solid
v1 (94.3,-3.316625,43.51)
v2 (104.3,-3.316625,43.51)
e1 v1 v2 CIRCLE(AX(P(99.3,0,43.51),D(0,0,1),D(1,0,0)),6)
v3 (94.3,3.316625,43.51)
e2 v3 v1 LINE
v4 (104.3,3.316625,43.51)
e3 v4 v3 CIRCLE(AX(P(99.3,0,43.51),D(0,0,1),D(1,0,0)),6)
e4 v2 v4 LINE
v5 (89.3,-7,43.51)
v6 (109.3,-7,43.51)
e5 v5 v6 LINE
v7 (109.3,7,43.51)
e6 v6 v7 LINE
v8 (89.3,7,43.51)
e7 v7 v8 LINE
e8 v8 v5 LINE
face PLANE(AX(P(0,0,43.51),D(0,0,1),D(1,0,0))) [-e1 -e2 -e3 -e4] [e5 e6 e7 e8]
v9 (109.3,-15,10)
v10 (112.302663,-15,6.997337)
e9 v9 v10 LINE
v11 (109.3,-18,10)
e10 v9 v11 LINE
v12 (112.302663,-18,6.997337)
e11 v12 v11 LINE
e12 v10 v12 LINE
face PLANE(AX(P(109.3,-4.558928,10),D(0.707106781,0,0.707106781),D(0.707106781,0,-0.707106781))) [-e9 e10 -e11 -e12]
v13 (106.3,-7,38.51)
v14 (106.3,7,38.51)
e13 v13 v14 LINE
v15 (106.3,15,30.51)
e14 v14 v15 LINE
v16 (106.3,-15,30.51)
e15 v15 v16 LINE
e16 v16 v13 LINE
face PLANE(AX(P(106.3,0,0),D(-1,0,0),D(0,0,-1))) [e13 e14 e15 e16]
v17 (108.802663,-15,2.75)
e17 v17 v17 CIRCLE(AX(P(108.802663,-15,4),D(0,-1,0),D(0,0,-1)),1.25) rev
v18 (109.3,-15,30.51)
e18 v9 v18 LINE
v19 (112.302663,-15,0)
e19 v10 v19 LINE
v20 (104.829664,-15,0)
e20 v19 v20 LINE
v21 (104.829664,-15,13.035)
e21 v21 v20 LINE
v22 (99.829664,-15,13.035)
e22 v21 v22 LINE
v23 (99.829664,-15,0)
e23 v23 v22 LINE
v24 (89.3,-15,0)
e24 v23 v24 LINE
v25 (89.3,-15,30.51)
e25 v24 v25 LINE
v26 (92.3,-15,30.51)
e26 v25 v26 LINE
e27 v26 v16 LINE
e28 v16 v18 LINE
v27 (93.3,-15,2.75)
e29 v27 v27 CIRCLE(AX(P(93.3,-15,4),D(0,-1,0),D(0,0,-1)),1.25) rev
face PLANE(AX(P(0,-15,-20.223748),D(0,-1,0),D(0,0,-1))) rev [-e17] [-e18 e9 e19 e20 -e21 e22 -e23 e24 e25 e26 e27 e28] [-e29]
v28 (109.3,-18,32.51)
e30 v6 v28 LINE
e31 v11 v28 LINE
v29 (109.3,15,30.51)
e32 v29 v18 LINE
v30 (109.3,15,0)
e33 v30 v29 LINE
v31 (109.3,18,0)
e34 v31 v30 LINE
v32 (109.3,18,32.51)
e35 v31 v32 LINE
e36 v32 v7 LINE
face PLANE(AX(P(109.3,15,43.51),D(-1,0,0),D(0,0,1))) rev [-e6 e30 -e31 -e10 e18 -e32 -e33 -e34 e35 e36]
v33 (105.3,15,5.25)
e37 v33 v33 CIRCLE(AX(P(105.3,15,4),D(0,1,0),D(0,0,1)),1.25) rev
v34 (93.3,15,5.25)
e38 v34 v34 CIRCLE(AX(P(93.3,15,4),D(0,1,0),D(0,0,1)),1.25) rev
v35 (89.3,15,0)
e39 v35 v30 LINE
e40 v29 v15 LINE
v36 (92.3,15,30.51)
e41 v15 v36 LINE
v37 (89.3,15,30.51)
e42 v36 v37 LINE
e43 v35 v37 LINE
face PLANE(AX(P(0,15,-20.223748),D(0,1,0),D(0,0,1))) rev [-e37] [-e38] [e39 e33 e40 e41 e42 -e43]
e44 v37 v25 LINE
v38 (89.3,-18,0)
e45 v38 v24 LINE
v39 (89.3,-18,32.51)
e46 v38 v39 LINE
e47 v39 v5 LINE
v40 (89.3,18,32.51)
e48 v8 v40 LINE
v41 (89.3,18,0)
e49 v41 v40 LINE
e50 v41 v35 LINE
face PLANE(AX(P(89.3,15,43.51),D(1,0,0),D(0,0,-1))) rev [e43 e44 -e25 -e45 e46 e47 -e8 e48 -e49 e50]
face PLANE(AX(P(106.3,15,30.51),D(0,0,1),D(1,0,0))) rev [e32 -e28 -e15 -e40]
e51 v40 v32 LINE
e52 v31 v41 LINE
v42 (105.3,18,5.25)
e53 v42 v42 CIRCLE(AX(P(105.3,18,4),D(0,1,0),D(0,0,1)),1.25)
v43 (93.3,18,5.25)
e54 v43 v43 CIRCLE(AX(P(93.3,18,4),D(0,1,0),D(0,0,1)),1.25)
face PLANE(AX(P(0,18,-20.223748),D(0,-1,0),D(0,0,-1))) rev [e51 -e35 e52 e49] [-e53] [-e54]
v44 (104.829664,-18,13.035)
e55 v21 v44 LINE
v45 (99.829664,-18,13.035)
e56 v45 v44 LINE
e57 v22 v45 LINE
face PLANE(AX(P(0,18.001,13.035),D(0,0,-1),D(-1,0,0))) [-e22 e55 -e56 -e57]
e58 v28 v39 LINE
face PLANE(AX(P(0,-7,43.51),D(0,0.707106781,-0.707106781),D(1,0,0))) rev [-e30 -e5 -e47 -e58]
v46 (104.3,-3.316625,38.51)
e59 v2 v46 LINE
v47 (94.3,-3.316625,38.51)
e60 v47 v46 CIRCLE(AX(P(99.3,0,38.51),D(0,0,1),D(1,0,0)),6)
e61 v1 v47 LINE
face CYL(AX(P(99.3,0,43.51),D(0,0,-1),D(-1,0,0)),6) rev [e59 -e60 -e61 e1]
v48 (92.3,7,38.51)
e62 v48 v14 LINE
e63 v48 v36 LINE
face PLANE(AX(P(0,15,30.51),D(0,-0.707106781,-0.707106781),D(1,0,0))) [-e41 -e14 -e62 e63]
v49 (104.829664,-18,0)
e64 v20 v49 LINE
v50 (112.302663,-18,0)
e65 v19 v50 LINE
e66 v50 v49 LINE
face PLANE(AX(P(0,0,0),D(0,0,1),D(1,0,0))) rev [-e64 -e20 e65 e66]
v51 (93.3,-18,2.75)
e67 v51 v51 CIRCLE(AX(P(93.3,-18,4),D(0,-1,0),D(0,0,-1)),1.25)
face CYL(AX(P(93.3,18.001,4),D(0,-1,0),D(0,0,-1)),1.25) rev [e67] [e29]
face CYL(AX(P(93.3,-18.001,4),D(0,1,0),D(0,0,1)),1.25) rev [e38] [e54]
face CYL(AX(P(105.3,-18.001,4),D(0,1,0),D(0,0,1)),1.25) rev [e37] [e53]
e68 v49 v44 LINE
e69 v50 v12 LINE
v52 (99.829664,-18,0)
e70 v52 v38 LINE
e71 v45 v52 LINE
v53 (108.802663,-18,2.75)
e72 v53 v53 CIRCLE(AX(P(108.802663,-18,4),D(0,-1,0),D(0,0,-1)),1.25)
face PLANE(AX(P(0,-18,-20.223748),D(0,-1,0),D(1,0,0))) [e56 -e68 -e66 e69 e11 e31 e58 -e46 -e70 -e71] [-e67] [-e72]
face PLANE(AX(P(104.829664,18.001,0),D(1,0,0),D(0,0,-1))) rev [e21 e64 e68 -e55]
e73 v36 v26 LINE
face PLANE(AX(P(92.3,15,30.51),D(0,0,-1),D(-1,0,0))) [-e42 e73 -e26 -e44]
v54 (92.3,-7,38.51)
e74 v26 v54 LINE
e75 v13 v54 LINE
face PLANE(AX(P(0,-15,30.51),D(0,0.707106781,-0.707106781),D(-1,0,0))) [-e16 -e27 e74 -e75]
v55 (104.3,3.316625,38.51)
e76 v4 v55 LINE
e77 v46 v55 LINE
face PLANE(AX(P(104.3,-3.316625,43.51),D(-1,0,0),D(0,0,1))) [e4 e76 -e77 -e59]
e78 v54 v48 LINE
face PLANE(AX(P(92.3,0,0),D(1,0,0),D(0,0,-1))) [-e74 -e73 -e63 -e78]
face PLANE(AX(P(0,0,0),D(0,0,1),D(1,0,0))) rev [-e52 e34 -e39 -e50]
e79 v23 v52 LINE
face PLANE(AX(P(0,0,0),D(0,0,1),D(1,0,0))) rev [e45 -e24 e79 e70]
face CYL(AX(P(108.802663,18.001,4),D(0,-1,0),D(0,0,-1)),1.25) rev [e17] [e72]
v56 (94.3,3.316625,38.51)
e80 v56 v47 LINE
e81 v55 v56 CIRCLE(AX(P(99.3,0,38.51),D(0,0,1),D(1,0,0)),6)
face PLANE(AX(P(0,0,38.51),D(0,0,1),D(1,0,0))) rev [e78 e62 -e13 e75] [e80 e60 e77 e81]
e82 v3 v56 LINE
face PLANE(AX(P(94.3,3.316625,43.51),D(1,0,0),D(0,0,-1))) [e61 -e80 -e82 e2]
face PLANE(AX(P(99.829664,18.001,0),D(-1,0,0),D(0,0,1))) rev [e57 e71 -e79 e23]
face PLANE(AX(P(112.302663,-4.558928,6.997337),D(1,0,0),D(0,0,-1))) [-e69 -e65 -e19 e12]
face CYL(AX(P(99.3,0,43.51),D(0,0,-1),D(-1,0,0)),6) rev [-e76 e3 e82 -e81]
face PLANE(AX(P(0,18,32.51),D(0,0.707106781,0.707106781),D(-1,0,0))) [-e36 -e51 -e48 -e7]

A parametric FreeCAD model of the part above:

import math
import FreeCAD as App
import Part
import Sketcher
Q = App.Units.Quantity


def edges_at(feature, points):
    """Names of the edges that pass closest to the given points."""
    edges = feature.Shape.Edges
    near = lambda p: min(range(len(edges)), key=lambda i: edges[i].distToShape(Part.Vertex(*p))[0])
    return sorted({f"Edge{near(p) + 1}" for p in points})


def add_polygon(sketch, points):
    """Adds a closed chain of lines whose ends are joined by coincident constraints."""
    first, n = sketch.GeometryCount, len(points)
    for a, b in zip(points, points[1:] + points[:1]):
        sketch.addGeometry(Part.LineSegment(App.Vector(*a, 0), App.Vector(*b, 0)), False)
    for i in range(n):
        sketch.addConstraint(Sketcher.Constraint("Coincident", first + i, 2, first + (i + 1) % n, 1))

doc = App.newDocument("Part")
params = doc.addObject("Spreadsheet::Sheet", "Params")
for row, (alias, value) in enumerate([
    ("sketch1_radius", "6 mm"),
    ("sketch1_width", "20 mm"),
    ("sketch1_height", "30 mm"),
    ("pad1_length", "5 mm"),
    ("sketch2_width", "20 mm"),
    ("sketch2_height", "3 mm"),
    ("pad2_length", "43.51 mm"),
    ("sketch3_width", "5 mm"),
    ("sketch4_height", "10 mm"),
    ("pad3_length", "3 mm"),
    ("sketch5_diameter", "2.5 mm"),
    ("sketch6_diameter", "2.5 mm"),
    ("sketch7_diameter", "2.5 mm"),
    ("sketch8_diameter", "2.5 mm"),
    ("chamfer_size", "8 mm"),
    ("chamfer2_size", "11 mm"),
    ("sketch9_width", "14 mm"),
    ("sketch9_width2", "30 mm"),
    ("pad4_length", "3 mm"),
], start=1):
    params.set(f"A{row}", alias)
    params.set(f"B{row}", "=" + value)
    params.setAlias(f"B{row}", alias)

body = doc.addObject("PartDesign::Body", "Body")

sketch1 = body.newObject("Sketcher::SketchObject", "Sketch")
sketch1.AttachmentSupport = (doc.getObject("XY_Plane"), [""])
sketch1.MapMode = "FlatFace"
sketch1.AttachmentOffset = App.Placement(App.Vector(0, 0, 38.51), App.Rotation())
add_polygon(sketch1, [(89, 15), (89, -15), (109, -15), (109, 15)])
sketch1.addGeometry(Part.LineSegment(App.Vector(104, 3, 0), App.Vector(104, -3, 0)), False)
sketch1.addGeometry(Part.ArcOfCircle(Part.Circle(App.Vector(99, 0, 0), App.Vector(0, 0, 1), 6), math.radians(-146), math.radians(-34)), False)
sketch1.addGeometry(Part.LineSegment(App.Vector(94, -3, 0), App.Vector(94, 3, 0)), False)
sketch1.addGeometry(Part.ArcOfCircle(Part.Circle(App.Vector(99, 0, 0), App.Vector(0, 0, 1), 6), math.radians(34), math.radians(146)), False)
sketch1.addConstraint([
    Sketcher.Constraint("Coincident", 4, 2, 5, 2),
    Sketcher.Constraint("Coincident", 5, 1, 6, 1),
    Sketcher.Constraint("Coincident", 6, 2, 7, 2),
    Sketcher.Constraint("Coincident", 7, 1, 4, 1),
    Sketcher.Constraint("Vertical", 0),
    Sketcher.Constraint("Horizontal", 1),
    Sketcher.Constraint("Vertical", 2),
    Sketcher.Constraint("Horizontal", 3),
    Sketcher.Constraint("Vertical", 4),
    Sketcher.Constraint("Vertical", 6),
    Sketcher.Constraint("Coincident", 7, 3, 5, 3),
    Sketcher.Constraint("Equal", 5, 7),
    Sketcher.Constraint("PointOnObject", 5, 3, -1),
    Sketcher.Constraint("Horizontal", 4, 2, 5, 1),
    Sketcher.Constraint("Radius", 5, 6.0),
    Sketcher.Constraint("DistanceX", 1, 1, 1, 2, 20.0),
    Sketcher.Constraint("DistanceY", 0, 2, 0, 1, 30.0),
    Sketcher.Constraint("DistanceY", 0, 2, -1, 1, 15.0),
    Sketcher.Constraint("DistanceX", 0, 2, 5, 3, 10.0),
    Sketcher.Constraint("DistanceX", 5, 3, 4, 2, 5.0),
    Sketcher.Constraint("DistanceX", -1, 1, 5, 3, 99.3),
])
sketch1.setExpression("Constraints[18]", "Params.sketch1_radius")
sketch1.setExpression("Constraints[19]", "Params.sketch1_width")
sketch1.setExpression("Constraints[20]", "Params.sketch1_height")
pad1 = body.newObject("PartDesign::Pad", "Pad")
pad1.Profile = sketch1
pad1.setExpression("Length", "Params.pad1_length")

sketch2 = body.newObject("Sketcher::SketchObject", "Sketch001")
sketch2.AttachmentSupport = (doc.getObject("XY_Plane"), [""])
sketch2.MapMode = "FlatFace"
sketch2.AttachmentOffset = App.Placement(App.Vector(0, 0, 43.51), App.Rotation())
add_polygon(sketch2, [(89.3, 18), (89.3, 15), (109.3, 15), (109.3, 18)])
add_polygon(sketch2, [(89.3, -15), (89.3, -18), (109.3, -18), (109.3, -15)])
sketch2.addConstraint([
    Sketcher.Constraint("Vertical", 0),
    Sketcher.Constraint("Horizontal", 1),
    Sketcher.Constraint("Vertical", 2),
    Sketcher.Constraint("Horizontal", 3),
    Sketcher.Constraint("Vertical", 4),
    Sketcher.Constraint("Horizontal", 5),
    Sketcher.Constraint("Vertical", 6),
    Sketcher.Constraint("Horizontal", 7),
    Sketcher.Constraint("Symmetric", 3, 2, 4, 2, -1),
    Sketcher.Constraint("Symmetric", 1, 2, 6, 2, -1),
    Sketcher.Constraint("DistanceX", 1, 1, 1, 2, 20.0),
    Sketcher.Constraint("DistanceY", 0, 2, 0, 1, 3.0),
    Sketcher.Constraint("DistanceY", -1, 1, 0, 2, 15.0),
    Sketcher.Constraint("DistanceX", -1, 1, 0, 2, 89.3),
])
sketch2.setExpression("Constraints[18]", "Params.sketch2_width")
sketch2.setExpression("Constraints[19]", "Params.sketch2_height")
pad2 = body.newObject("PartDesign::Pad", "Pad001")
pad2.Profile = sketch2
pad2.setExpression("Length", "Params.pad2_length")
pad2.Reversed = True

sketch3 = body.newObject("Sketcher::SketchObject", "Sketch002")
sketch3.AttachmentSupport = (doc.getObject("XZ_Plane"), [""])
sketch3.MapMode = "FlatFace"
sketch3.AttachmentOffset = App.Placement(App.Vector(0, 0, 18), App.Rotation())
add_polygon(sketch3, [(100, 13), (100, 0), (105, 0), (105, 13)])
sketch3.addConstraint([
    Sketcher.Constraint("Vertical", 0),
    Sketcher.Constraint("Horizontal", 1),
    Sketcher.Constraint("Vertical", 2),
    Sketcher.Constraint("Horizontal", 3),
    Sketcher.Constraint("PointOnObject", 0, 2, -1),
    Sketcher.Constraint("DistanceX", 1, 1, 1, 2, 5.0),
    Sketcher.Constraint("DistanceY", 0, 2, 0, 1, 13.035),
    Sketcher.Constraint("DistanceX", -1, 1, 0, 2, 99.829664),
])
sketch3.setExpression("Constraints[9]", "Params.sketch3_width")
pocket1 = body.newObject("PartDesign::Pocket", "Pocket")
pocket1.Profile = sketch3
pocket1.Type = "UpToFirst"

sketch4 = body.newObject("Sketcher::SketchObject", "Sketch003")
sketch4.AttachmentSupport = (doc.getObject("XZ_Plane"), [""])
sketch4.MapMode = "FlatFace"
sketch4.AttachmentOffset = App.Placement(App.Vector(0, 0, 18), App.Rotation())
add_polygon(sketch4, [(112.3, 7), (109.3, 10), (109.3, 0), (112.3, 0)])
sketch4.addConstraint([
    Sketcher.Constraint("Vertical", 1),
    Sketcher.Constraint("Horizontal", 2),
    Sketcher.Constraint("Vertical", 3),
    Sketcher.Constraint("PointOnObject", 1, 2, -1),
    Sketcher.Constraint("DistanceY", 1, 2, 1, 1, 10.0),
    Sketcher.Constraint("Angle", 0, Q("135 deg")),
    Sketcher.Constraint("DistanceX", -1, 1, 0, 2, 109.3),
    Sketcher.Constraint("DistanceX", 2, 1, 2, 2, 3.002663),
])
sketch4.setExpression("Constraints[8]", "Params.sketch4_height")
pad3 = body.newObject("PartDesign::Pad", "Pad002")
pad3.Profile = sketch4
pad3.setExpression("Length", "Params.pad3_length")
pad3.Reversed = True

sketch5 = body.newObject("Sketcher::SketchObject", "Sketch004")
sketch5.AttachmentSupport = (doc.getObject("XZ_Plane"), [""])
sketch5.MapMode = "FlatFace"
sketch5.AttachmentOffset = App.Placement(App.Vector(0, 0, 18), App.Rotation())
sketch5.addGeometry(Part.Circle(App.Vector(93.3, 4, 0), App.Vector(0, 0, 1), 1.2), False)
sketch5.addConstraint([
    Sketcher.Constraint("Diameter", 0, 2.5),
    Sketcher.Constraint("DistanceY", -1, 1, 0, 3, 4.0),
    Sketcher.Constraint("DistanceX", -1, 1, 0, 3, 93.3),
])
sketch5.setExpression("Constraints[0]", "Params.sketch5_diameter")
pocket2 = body.newObject("PartDesign::Pocket", "Pocket001")
pocket2.Profile = sketch5
pocket2.Type = "UpToFirst"

sketch6 = body.newObject("Sketcher::SketchObject", "Sketch005")
sketch6.AttachmentSupport = (doc.getObject("XZ_Plane"), [""])
sketch6.MapMode = "FlatFace"
sketch6.AttachmentOffset = App.Placement(App.Vector(0, 0, 18), App.Rotation())
sketch6.addGeometry(Part.Circle(App.Vector(108.8, 4, 0), App.Vector(0, 0, 1), 1.2), False)
sketch6.addConstraint([
    Sketcher.Constraint("Diameter", 0, 2.5),
    Sketcher.Constraint("DistanceY", -1, 1, 0, 3, 4.0),
    Sketcher.Constraint("DistanceX", -1, 1, 0, 3, 108.802663),
])
sketch6.setExpression("Constraints[0]", "Params.sketch6_diameter")
pocket3 = body.newObject("PartDesign::Pocket", "Pocket002")
pocket3.Profile = sketch6
pocket3.Type = "UpToFirst"

sketch7 = body.newObject("Sketcher::SketchObject", "Sketch006")
sketch7.AttachmentSupport = (doc.getObject("XZ_Plane"), [""])
sketch7.MapMode = "FlatFace"
sketch7.AttachmentOffset = App.Placement(App.Vector(0, 0, -18), App.Rotation())
sketch7.addGeometry(Part.Circle(App.Vector(105.3, 4, 0), App.Vector(0, 0, 1), 1.2), False)
sketch7.addConstraint([
    Sketcher.Constraint("Diameter", 0, 2.5),
    Sketcher.Constraint("DistanceY", -1, 1, 0, 3, 4.0),
    Sketcher.Constraint("DistanceX", -1, 1, 0, 3, 105.3),
])
sketch7.setExpression("Constraints[0]", "Params.sketch7_diameter")
pocket4 = body.newObject("PartDesign::Pocket", "Pocket003")
pocket4.Profile = sketch7
pocket4.Type = "UpToFirst"
pocket4.Reversed = True

sketch8 = body.newObject("Sketcher::SketchObject", "Sketch007")
sketch8.AttachmentSupport = (doc.getObject("XZ_Plane"), [""])
sketch8.MapMode = "FlatFace"
sketch8.AttachmentOffset = App.Placement(App.Vector(0, 0, -18), App.Rotation())
sketch8.addGeometry(Part.Circle(App.Vector(93.3, 4, 0), App.Vector(0, 0, 1), 1.2), False)
sketch8.addConstraint([
    Sketcher.Constraint("Diameter", 0, 2.5),
    Sketcher.Constraint("DistanceY", -1, 1, 0, 3, 4.0),
    Sketcher.Constraint("DistanceX", -1, 1, 0, 3, 93.3),
])
sketch8.setExpression("Constraints[0]", "Params.sketch8_diameter")
pocket5 = body.newObject("PartDesign::Pocket", "Pocket004")
pocket5.Profile = sketch8
pocket5.Type = "UpToFirst"
pocket5.Reversed = True
doc.recompute()

chamfer = body.newObject("PartDesign::Chamfer", "Chamfer")
chamfer.Base = (pocket5, edges_at(pocket5, [(99.3, -15, 38.51), (99.3, 15, 38.51)]))
chamfer.setExpression("Size", "Params.chamfer_size")
doc.recompute()

chamfer2 = body.newObject("PartDesign::Chamfer", "Chamfer001")
chamfer2.Base = (chamfer, edges_at(chamfer, [(99.3, 18, 43.51), (99.3, -18, 43.51)]))
chamfer2.setExpression("Size", "Params.chamfer2_size")

sketch9 = body.newObject("Sketcher::SketchObject", "Sketch008")
sketch9.AttachmentSupport = (doc.getObject("YZ_Plane"), [""])
sketch9.MapMode = "FlatFace"
sketch9.AttachmentOffset = App.Placement(App.Vector(0, 0, 89.3), App.Rotation())
add_polygon(sketch9, [(-15, 31), (-7, 39), (7, 39), (15, 31)])
sketch9.addConstraint([
    Sketcher.Constraint("Horizontal", 1),
    Sketcher.Constraint("Horizontal", 3),
    Sketcher.Constraint("Perpendicular", 0, 2),
    Sketcher.Constraint("Equal", 0, 2),
    Sketcher.Constraint("DistanceX", 1, 1, 1, 2, 14.0),
    Sketcher.Constraint("DistanceX", 3, 2, 3, 1, 30.0),
    Sketcher.Constraint("DistanceX", 0, 2, -1, 1, 7.0),
    Sketcher.Constraint("DistanceY", -1, 1, 0, 2, 38.51),
])
sketch9.setExpression("Constraints[8]", "Params.sketch9_width")
sketch9.setExpression("Constraints[9]", "Params.sketch9_width2")
pad4 = body.newObject("PartDesign::Pad", "Pad003")
pad4.Profile = sketch9
pad4.setExpression("Length", "Params.pad4_length")
doc.recompute()

datumplane = body.newObject("PartDesign::Plane", "DatumPlane")
datumplane.AttachmentSupport = (doc.getObject("YZ_Plane"), [""])
datumplane.MapMode = "FlatFace"
datumplane.AttachmentOffset = App.Placement(App.Vector(0, 0, 99.3), App.Rotation())
mirrored = body.newObject("PartDesign::Mirrored", "Mirrored")
mirrored.Originals = [pad4]
mirrored.MirrorPlane = (datumplane, [""])
body.Tip = mirrored

doc.recompute()
